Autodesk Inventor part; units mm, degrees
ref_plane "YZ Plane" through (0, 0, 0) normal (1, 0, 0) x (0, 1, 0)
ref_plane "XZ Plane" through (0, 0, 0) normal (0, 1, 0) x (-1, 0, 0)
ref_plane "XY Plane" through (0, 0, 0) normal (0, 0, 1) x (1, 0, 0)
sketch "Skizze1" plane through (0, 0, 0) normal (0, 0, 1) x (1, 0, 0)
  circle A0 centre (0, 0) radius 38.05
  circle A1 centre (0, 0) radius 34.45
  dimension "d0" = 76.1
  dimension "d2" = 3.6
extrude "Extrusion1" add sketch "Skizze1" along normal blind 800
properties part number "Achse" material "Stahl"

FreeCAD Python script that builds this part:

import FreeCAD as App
import Part
import Sketcher
Q = App.Units.Quantity

doc = App.newDocument("Part")
params = doc.addObject("Spreadsheet::Sheet", "Params")
for row, (alias, value) in enumerate([
    ("sketch1_diameter", "76.1 mm"),
    ("sketch1_diameter2", "68.9 mm"),
    ("pad1_length", "800 mm"),
], start=1):
    params.set(f"A{row}", alias)
    params.set(f"B{row}", "=" + value)
    params.setAlias(f"B{row}", alias)

body = doc.addObject("PartDesign::Body", "Body")

sketch1 = body.newObject("Sketcher::SketchObject", "Sketch")
sketch1.AttachmentSupport = (doc.getObject("XY_Plane"), [""])
sketch1.MapMode = "FlatFace"
sketch1.addGeometry(Part.Circle(App.Vector(0, 0, 0), App.Vector(0, 0, 1), 38), False)
sketch1.addGeometry(Part.Circle(App.Vector(0, 0, 0), App.Vector(0, 0, 1), 34), False)
sketch1.addConstraint(Sketcher.Constraint("Coincident", 0, 3, -1, 1))
sketch1.addConstraint(Sketcher.Constraint("Coincident", 1, 3, -1, 1))
sketch1.addConstraint(Sketcher.Constraint("Diameter", 0, Q("76.1 mm")))
sketch1.addConstraint(Sketcher.Constraint("Diameter", 1, Q("68.9 mm")))
sketch1.setExpression("Constraints[2]", "Params.sketch1_diameter")
sketch1.setExpression("Constraints[3]", "Params.sketch1_diameter2")
pad1 = body.newObject("PartDesign::Pad", "Pad")
pad1.Profile = sketch1
pad1.setExpression("Length", "Params.pad1_length")

doc.recompute()
